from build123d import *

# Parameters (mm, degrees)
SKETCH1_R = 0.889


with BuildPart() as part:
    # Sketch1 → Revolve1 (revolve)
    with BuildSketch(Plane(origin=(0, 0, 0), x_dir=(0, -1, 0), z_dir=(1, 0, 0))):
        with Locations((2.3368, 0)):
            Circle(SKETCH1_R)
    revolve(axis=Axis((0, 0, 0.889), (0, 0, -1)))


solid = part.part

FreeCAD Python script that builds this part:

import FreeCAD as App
import Part
import Sketcher
Q = App.Units.Quantity

doc = App.newDocument("Part")
body = doc.addObject("PartDesign::Body", "Body")

# Sketch on YZ plane
sketch1 = body.newObject("Sketcher::SketchObject", "Sketch")
sketch1.AttachmentSupport = (doc.getObject("YZ_Plane"), [""])
sketch1.MapMode = "FlatFace"
sketch1.addGeometry(Part.Circle(App.Vector(-2.3, 0, 0), App.Vector(0, 0, 1), 0.9), False)
sketch1.addConstraint([
    Sketcher.Constraint("PointOnObject", 0, 3, -1),
    Sketcher.Constraint("Diameter", 0, Q("0.07 in")),
    Sketcher.Constraint("DistanceX", 0, 3, -1, 1, Q("0.092 in")),
])
revolution = body.newObject("PartDesign::Revolution", "Revolution")
revolution.Profile = sketch1
revolution.ReferenceAxis = (sketch1, ["V_Axis"])
revolution.Angle = 360

doc.recompute()
